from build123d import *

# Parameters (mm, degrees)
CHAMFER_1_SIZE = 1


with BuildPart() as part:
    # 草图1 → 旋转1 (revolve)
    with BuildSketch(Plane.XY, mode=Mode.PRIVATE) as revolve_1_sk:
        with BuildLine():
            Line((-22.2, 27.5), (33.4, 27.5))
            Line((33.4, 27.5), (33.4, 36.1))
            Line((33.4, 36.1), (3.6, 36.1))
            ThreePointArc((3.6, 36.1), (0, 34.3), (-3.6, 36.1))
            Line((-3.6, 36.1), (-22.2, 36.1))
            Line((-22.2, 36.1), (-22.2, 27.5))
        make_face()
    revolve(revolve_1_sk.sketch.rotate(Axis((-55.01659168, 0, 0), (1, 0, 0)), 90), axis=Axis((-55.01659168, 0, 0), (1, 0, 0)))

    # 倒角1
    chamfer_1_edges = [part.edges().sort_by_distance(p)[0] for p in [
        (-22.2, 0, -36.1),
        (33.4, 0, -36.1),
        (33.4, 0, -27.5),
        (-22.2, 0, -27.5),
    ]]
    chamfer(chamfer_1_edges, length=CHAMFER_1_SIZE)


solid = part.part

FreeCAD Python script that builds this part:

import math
import FreeCAD as App
import Part
import Sketcher


def edges_at(feature, points):
    """Names of the edges that pass closest to the given points."""
    edges = feature.Shape.Edges
    near = lambda p: min(range(len(edges)), key=lambda i: edges[i].distToShape(Part.Vertex(*p))[0])
    return sorted({f"Edge{near(p) + 1}" for p in points})

doc = App.newDocument("Part")
body = doc.addObject("PartDesign::Body", "Body")

sketch1 = body.newObject("Sketcher::SketchObject", "Sketch")
sketch1.AttachmentSupport = (doc.getObject("XY_Plane"), [""])
sketch1.MapMode = "FlatFace"
sketch1.addGeometry(Part.LineSegment(App.Vector(-22.2, 27.5, 0), App.Vector(33.4, 27.5, 0)), False)
sketch1.addGeometry(Part.LineSegment(App.Vector(33.4, 27.5, 0), App.Vector(33.4, 36.1, 0)), False)
sketch1.addGeometry(Part.LineSegment(App.Vector(33.4, 36.1, 0), App.Vector(3.6, 36.1, 0)), False)
sketch1.addGeometry(Part.ArcOfCircle(Part.Circle(App.Vector(0, 38.8, 0), App.Vector(0, 0, 1), 4.5), math.radians(-143.130102), math.radians(-36.869898)), False)
sketch1.addGeometry(Part.LineSegment(App.Vector(-3.6, 36.1, 0), App.Vector(-22.2, 36.1, 0)), False)
sketch1.addGeometry(Part.LineSegment(App.Vector(-22.2, 36.1, 0), App.Vector(-22.2, 27.5, 0)), False)
sketch1.addConstraint(Sketcher.Constraint("Coincident", 0, 2, 1, 1))
sketch1.addConstraint(Sketcher.Constraint("Coincident", 1, 2, 2, 1))
sketch1.addConstraint(Sketcher.Constraint("Coincident", 2, 2, 3, 2))
sketch1.addConstraint(Sketcher.Constraint("Coincident", 3, 1, 4, 1))
sketch1.addConstraint(Sketcher.Constraint("Coincident", 4, 2, 5, 1))
sketch1.addConstraint(Sketcher.Constraint("Coincident", 5, 2, 0, 1))
sketch1.addConstraint(Sketcher.Constraint("Horizontal", 0))
sketch1.addConstraint(Sketcher.Constraint("Vertical", 1))
sketch1.addConstraint(Sketcher.Constraint("Horizontal", 2))
sketch1.addConstraint(Sketcher.Constraint("Horizontal", 4))
sketch1.addConstraint(Sketcher.Constraint("Vertical", 5))
sketch1.addConstraint(Sketcher.Constraint("Symmetric", 2, 2, 3, 1, -2))
sketch1.addConstraint(Sketcher.Constraint("Radius", 3, 4.5))
sketch1.addConstraint(Sketcher.Constraint("DistanceX", 0, 1, 0, 2, 55.6))
sketch1.addConstraint(Sketcher.Constraint("DistanceX", 2, 2, 2, 1, 29.8))
sketch1.addConstraint(Sketcher.Constraint("DistanceX", 4, 2, 4, 1, 18.6))
sketch1.addConstraint(Sketcher.Constraint("DistanceY", 1, 1, 1, 2, 8.6))
sketch1.addConstraint(Sketcher.Constraint("DistanceY", -1, 1, 3, 3, 38.8))
revolution = body.newObject("PartDesign::Revolution", "Revolution")
revolution.Profile = sketch1
revolution.ReferenceAxis = (sketch1, ["H_Axis"])
revolution.Angle = 360
doc.recompute()

chamfer = body.newObject("PartDesign::Chamfer", "Chamfer")
chamfer.Base = (revolution, edges_at(revolution, [
    (-22.2, 0, -36.1),
    (33.4, 0, -36.1),
    (33.4, 0, -27.5),
    (-22.2, 0, -27.5),
]))
chamfer.Size = 1

doc.recompute()
